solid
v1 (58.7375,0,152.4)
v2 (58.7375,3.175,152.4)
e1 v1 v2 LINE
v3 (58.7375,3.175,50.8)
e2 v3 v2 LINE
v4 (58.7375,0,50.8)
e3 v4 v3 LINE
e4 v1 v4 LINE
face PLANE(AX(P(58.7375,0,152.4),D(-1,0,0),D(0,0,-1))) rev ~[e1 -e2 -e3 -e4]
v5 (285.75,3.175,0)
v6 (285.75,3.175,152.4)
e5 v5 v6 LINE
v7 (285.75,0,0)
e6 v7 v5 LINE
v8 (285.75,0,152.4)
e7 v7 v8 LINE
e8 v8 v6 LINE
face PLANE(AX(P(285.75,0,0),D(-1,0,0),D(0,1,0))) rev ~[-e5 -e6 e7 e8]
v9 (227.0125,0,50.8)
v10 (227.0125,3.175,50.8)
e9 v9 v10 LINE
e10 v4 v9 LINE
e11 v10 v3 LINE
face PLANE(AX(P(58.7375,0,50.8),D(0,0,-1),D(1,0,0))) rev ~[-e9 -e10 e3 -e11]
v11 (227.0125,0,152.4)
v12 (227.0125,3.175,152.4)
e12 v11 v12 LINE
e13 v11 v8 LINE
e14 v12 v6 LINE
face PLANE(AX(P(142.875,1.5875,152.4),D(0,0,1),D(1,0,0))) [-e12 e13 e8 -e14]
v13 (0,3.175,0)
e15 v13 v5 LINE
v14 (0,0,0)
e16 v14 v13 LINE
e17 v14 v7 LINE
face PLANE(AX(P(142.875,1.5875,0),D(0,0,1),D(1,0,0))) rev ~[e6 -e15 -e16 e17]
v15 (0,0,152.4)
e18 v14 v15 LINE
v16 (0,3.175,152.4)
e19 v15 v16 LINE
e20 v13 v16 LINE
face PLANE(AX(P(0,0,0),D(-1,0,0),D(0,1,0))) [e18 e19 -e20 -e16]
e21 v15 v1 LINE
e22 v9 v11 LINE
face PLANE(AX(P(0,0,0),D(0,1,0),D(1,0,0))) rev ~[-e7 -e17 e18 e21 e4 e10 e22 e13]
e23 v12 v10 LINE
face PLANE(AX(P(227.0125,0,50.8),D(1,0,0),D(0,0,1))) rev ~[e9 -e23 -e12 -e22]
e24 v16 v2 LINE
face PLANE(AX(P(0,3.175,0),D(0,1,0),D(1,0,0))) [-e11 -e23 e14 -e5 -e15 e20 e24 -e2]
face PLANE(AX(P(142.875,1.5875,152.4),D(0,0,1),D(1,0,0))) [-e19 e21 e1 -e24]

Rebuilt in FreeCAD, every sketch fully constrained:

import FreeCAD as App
import Part
import Sketcher

V = App.Vector
Q = App.Units.Quantity

doc = App.newDocument("Part")
params = doc.addObject("Spreadsheet::Sheet", "Params")
for row, (alias, value) in enumerate([
    ("sketch1_width", "11.25 in"),
    ("sketch1_height", "0.125 in"),
    ("pad1_length", "6 in"),
    ("sketch2_height", "4 in"),
    ("sketch2_width", "6.625 in"),
    ("pocket1_length", "1 in"),
], start=1):
    params.set(f"A{row}", alias)
    params.set(f"B{row}", "=" + value)
    params.setAlias(f"B{row}", alias)

body = doc.addObject("PartDesign::Body", "Body")

sketch1 = body.newObject("Sketcher::SketchObject", "Sketch")
sketch1.AttachmentSupport = (doc.getObject("XY_Plane"), [""])
sketch1.MapMode = "FlatFace"
sketch1.addGeometry([
    Part.LineSegment(V(0, 3.175, 0), V(0, 0, 0)),
    Part.LineSegment(V(0, 0, 0), V(285.75, 0, 0)),
    Part.LineSegment(V(285.75, 0, 0), V(285.75, 3.175, 0)),
    Part.LineSegment(V(285.75, 3.175, 0), V(0, 3.175, 0)),
], False)
sketch1.addConstraint([
    Sketcher.Constraint("Coincident", 0, 2, 1, 1),
    Sketcher.Constraint("Coincident", 1, 2, 2, 1),
    Sketcher.Constraint("Coincident", 2, 2, 3, 1),
    Sketcher.Constraint("Coincident", 3, 2, 0, 1),
    Sketcher.Constraint("Vertical", 0),
    Sketcher.Constraint("Horizontal", 1),
    Sketcher.Constraint("Vertical", 2),
    Sketcher.Constraint("Horizontal", 3),
    Sketcher.Constraint("Coincident", 0, 2, -1, 1),
    Sketcher.Constraint("DistanceX", 1, 1, 1, 2, Q("11.25 in")),
    Sketcher.Constraint("DistanceY", 0, 2, 0, 1, Q("0.125 in")),
])
sketch1.setExpression("Constraints[9]", "Params.sketch1_width")
sketch1.setExpression("Constraints[10]", "Params.sketch1_height")
pad1 = body.newObject("PartDesign::Pad", "Pad")
pad1.Profile = sketch1
pad1.setExpression("Length", "Params.pad1_length")

sketch2 = body.newObject("Sketcher::SketchObject", "Sketch001")
sketch2.AttachmentSupport = (doc.getObject("XZ_Plane"), [""])
sketch2.MapMode = "FlatFace"
sketch2.addGeometry([
    Part.LineSegment(V(58.7375, 50.8, 0), V(227.0125, 50.8, 0)),
    Part.LineSegment(V(227.0125, 50.8, 0), V(227.0125, 152.4, 0)),
    Part.LineSegment(V(227.0125, 152.4, 0), V(58.7375, 152.4, 0)),
    Part.LineSegment(V(58.7375, 152.4, 0), V(58.7375, 50.8, 0)),
], False)
sketch2.addConstraint([
    Sketcher.Constraint("Coincident", 0, 2, 1, 1),
    Sketcher.Constraint("Coincident", 1, 2, 2, 1),
    Sketcher.Constraint("Coincident", 2, 2, 3, 1),
    Sketcher.Constraint("Coincident", 3, 2, 0, 1),
    Sketcher.Constraint("Horizontal", 0),
    Sketcher.Constraint("Vertical", 1),
    Sketcher.Constraint("Horizontal", 2),
    Sketcher.Constraint("Vertical", 3),
    Sketcher.Constraint("DistanceY", 1, 1, 1, 2, Q("4 in")),
    Sketcher.Constraint("DistanceY", -1, 1, 0, 2, Q("2 in")),
    Sketcher.Constraint("DistanceX", 0, 1, 0, 2, Q("6.625 in")),
    Sketcher.Constraint("DistanceX", -1, 1, 0, 2, Q("8.9375 in")),
])
sketch2.setExpression("Constraints[8]", "Params.sketch2_height")
sketch2.setExpression("Constraints[10]", "Params.sketch2_width")
pocket1 = body.newObject("PartDesign::Pocket", "Pocket")
pocket1.Profile = sketch2
pocket1.setExpression("Length", "Params.pocket1_length")

doc.recompute()
